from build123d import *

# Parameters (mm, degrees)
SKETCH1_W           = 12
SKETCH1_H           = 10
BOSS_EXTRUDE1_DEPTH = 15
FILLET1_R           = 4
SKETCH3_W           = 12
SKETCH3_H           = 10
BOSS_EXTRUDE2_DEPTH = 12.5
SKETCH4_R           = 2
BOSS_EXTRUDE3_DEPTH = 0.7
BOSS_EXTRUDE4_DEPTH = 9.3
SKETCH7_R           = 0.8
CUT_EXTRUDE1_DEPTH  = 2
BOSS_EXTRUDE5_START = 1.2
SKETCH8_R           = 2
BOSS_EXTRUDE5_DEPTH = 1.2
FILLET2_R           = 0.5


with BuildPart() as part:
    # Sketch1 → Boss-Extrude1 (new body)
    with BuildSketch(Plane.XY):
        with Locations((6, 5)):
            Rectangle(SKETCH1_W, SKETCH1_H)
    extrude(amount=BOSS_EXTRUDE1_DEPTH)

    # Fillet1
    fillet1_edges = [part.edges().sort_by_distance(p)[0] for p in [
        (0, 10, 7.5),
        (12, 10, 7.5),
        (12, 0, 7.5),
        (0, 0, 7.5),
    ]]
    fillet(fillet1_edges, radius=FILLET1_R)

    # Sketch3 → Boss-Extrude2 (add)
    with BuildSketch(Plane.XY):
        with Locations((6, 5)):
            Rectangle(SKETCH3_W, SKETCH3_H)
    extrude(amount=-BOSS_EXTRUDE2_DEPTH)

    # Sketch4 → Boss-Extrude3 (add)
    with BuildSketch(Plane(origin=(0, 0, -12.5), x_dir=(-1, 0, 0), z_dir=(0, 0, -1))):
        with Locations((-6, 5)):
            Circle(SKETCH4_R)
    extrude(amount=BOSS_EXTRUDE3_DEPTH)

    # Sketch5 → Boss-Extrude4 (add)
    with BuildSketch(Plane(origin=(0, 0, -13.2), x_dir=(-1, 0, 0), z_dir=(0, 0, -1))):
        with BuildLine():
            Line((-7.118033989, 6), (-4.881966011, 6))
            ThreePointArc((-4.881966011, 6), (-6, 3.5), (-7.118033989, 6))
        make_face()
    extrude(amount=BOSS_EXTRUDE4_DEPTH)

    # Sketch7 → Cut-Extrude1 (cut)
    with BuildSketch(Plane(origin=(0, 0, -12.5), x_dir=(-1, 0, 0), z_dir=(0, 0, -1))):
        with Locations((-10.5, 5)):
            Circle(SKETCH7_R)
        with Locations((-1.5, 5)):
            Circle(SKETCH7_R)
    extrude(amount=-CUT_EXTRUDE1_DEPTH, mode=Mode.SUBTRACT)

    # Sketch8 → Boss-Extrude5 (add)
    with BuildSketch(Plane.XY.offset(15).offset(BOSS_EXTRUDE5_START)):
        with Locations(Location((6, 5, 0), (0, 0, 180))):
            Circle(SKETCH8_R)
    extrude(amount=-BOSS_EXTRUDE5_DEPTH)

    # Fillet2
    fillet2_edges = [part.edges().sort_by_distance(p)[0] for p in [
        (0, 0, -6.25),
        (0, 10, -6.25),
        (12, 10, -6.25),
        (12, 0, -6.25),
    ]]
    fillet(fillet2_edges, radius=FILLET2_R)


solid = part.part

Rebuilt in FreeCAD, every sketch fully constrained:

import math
import FreeCAD as App
import Part
import Sketcher
Q = App.Units.Quantity


def edges_at(feature, points):
    """Names of the edges that pass closest to the given points."""
    edges = feature.Shape.Edges
    near = lambda p: min(range(len(edges)), key=lambda i: edges[i].distToShape(Part.Vertex(*p))[0])
    return sorted({f"Edge{near(p) + 1}" for p in points})


def add_polygon(sketch, points):
    """Adds a closed chain of lines whose ends are joined by coincident constraints."""
    first, n = sketch.GeometryCount, len(points)
    for a, b in zip(points, points[1:] + points[:1]):
        sketch.addGeometry(Part.LineSegment(App.Vector(*a, 0), App.Vector(*b, 0)), False)
    for i in range(n):
        sketch.addConstraint(Sketcher.Constraint("Coincident", first + i, 2, first + (i + 1) % n, 1))

doc = App.newDocument("Part")
body = doc.addObject("PartDesign::Body", "Body")

sketch1 = body.newObject("Sketcher::SketchObject", "Sketch")
sketch1.AttachmentSupport = (doc.getObject("XY_Plane"), [""])
sketch1.MapMode = "FlatFace"
add_polygon(sketch1, [(0, 10), (0, 0), (12, 0), (12, 10)])
sketch1.addConstraint([
    Sketcher.Constraint("Vertical", 0),
    Sketcher.Constraint("Horizontal", 1),
    Sketcher.Constraint("Vertical", 2),
    Sketcher.Constraint("Horizontal", 3),
    Sketcher.Constraint("Coincident", 0, 2, -1, 1),
    Sketcher.Constraint("DistanceX", 1, 1, 1, 2, Q("12 mm")),
    Sketcher.Constraint("DistanceY", 0, 2, 0, 1, Q("10 mm")),
])
pad1 = body.newObject("PartDesign::Pad", "Pad")
pad1.Profile = sketch1
pad1.Length = 15
doc.recompute()

fillet = body.newObject("PartDesign::Fillet", "Fillet")
fillet.Base = (pad1, edges_at(pad1, [
    (0, 10, 7.5),
    (12, 10, 7.5),
    (12, 0, 7.5),
    (0, 0, 7.5),
]))
fillet.Radius = 4

sketch2 = body.newObject("Sketcher::SketchObject", "Sketch001")
sketch2.AttachmentSupport = (doc.getObject("XY_Plane"), [""])
sketch2.MapMode = "FlatFace"
add_polygon(sketch2, [(0, 10), (0, 0), (12, 0), (12, 10)])
sketch2.addConstraint([
    Sketcher.Constraint("Vertical", 0),
    Sketcher.Constraint("Horizontal", 1),
    Sketcher.Constraint("Vertical", 2),
    Sketcher.Constraint("Horizontal", 3),
    Sketcher.Constraint("Coincident", 0, 2, -1, 1),
    Sketcher.Constraint("DistanceX", 1, 1, 1, 2, Q("12 mm")),
    Sketcher.Constraint("DistanceY", 0, 2, 0, 1, Q("10 mm")),
])
pad2 = body.newObject("PartDesign::Pad", "Pad001")
pad2.Profile = sketch2
pad2.Length = 12.5
pad2.Reversed = True

sketch3 = body.newObject("Sketcher::SketchObject", "Sketch002")
sketch3.AttachmentSupport = (doc.getObject("XY_Plane"), [""])
sketch3.MapMode = "FlatFace"
sketch3.AttachmentOffset = App.Placement(App.Vector(0, 0, -12.5), App.Rotation())
sketch3.addGeometry(Part.Circle(App.Vector(6, 5, 0), App.Vector(0, 0, 1), 2), False)
sketch3.addConstraint([
    Sketcher.Constraint("Diameter", 0, Q("4 mm")),
    Sketcher.Constraint("DistanceX", -1, 1, 0, 3, Q("6 mm")),
    Sketcher.Constraint("DistanceY", -1, 1, 0, 3, Q("5 mm")),
])
pad3 = body.newObject("PartDesign::Pad", "Pad002")
pad3.Profile = sketch3
pad3.Length = 0.7
pad3.Reversed = True

sketch4 = body.newObject("Sketcher::SketchObject", "Sketch003")
sketch4.AttachmentSupport = (doc.getObject("XY_Plane"), [""])
sketch4.MapMode = "FlatFace"
sketch4.AttachmentOffset = App.Placement(App.Vector(0, 0, -13.2), App.Rotation())
sketch4.addGeometry([
    Part.LineSegment(App.Vector(4.881966, 6, 0), App.Vector(7.118034, 6, 0)),
    Part.ArcOfCircle(Part.Circle(App.Vector(6, 5, 0), App.Vector(0, 0, 1), 1.5), math.radians(138.189685), math.radians(401.810315)),
], False)
sketch4.addConstraint([
    Sketcher.Constraint("Coincident", 0, 1, 1, 1),
    Sketcher.Constraint("Coincident", 1, 2, 0, 2),
    Sketcher.Constraint("Horizontal", 0),
    Sketcher.Constraint("Radius", 1, Q("1.5 mm")),
    Sketcher.Constraint("DistanceX", -1, 1, 1, 3, Q("6 mm")),
    Sketcher.Constraint("DistanceY", -1, 1, 1, 3, Q("5 mm")),
    Sketcher.Constraint("DistanceY", -1, 1, 0, 1, Q("6 mm")),
])
pad4 = body.newObject("PartDesign::Pad", "Pad003")
pad4.Profile = sketch4
pad4.Length = 9.3
pad4.Reversed = True

sketch5 = body.newObject("Sketcher::SketchObject", "Sketch004")
sketch5.AttachmentSupport = (doc.getObject("XY_Plane"), [""])
sketch5.MapMode = "FlatFace"
sketch5.AttachmentOffset = App.Placement(App.Vector(0, 0, -12.5), App.Rotation())
sketch5.addGeometry([
    Part.Circle(App.Vector(10.5, 5, 0), App.Vector(0, 0, 1), 0.8),
    Part.Circle(App.Vector(1.5, 5, 0), App.Vector(0, 0, 1), 0.8),
], False)
sketch5.addConstraint([
    Sketcher.Constraint("Equal", 0, 1),
    Sketcher.Constraint("Horizontal", 0, 3, 1, 3),
    Sketcher.Constraint("Diameter", 0, Q("1.6 mm")),
    Sketcher.Constraint("DistanceY", -1, 1, 0, 3, Q("5 mm")),
    Sketcher.Constraint("DistanceX", 1, 3, 0, 3, Q("9 mm")),
    Sketcher.Constraint("DistanceX", -1, 1, 0, 3, Q("10.5 mm")),
])
pocket1 = body.newObject("PartDesign::Pocket", "Pocket")
pocket1.Profile = sketch5
pocket1.Length = 2
pocket1.Reversed = True

sketch6 = body.newObject("Sketcher::SketchObject", "Sketch005")
sketch6.AttachmentSupport = (doc.getObject("XY_Plane"), [""])
sketch6.MapMode = "FlatFace"
sketch6.AttachmentOffset = App.Placement(App.Vector(0, 0, 16.2), App.Rotation())
sketch6.addGeometry(Part.Circle(App.Vector(6, 5, 0), App.Vector(0, 0, 1), 2), False)
sketch6.addConstraint([
    Sketcher.Constraint("Diameter", 0, Q("4 mm")),
    Sketcher.Constraint("DistanceX", -1, 1, 0, 3, Q("6 mm")),
    Sketcher.Constraint("DistanceY", -1, 1, 0, 3, Q("5 mm")),
])
pad5 = body.newObject("PartDesign::Pad", "Pad004")
pad5.Profile = sketch6
pad5.Length = 1.2
pad5.Reversed = True
doc.recompute()

fillet2 = body.newObject("PartDesign::Fillet", "Fillet001")
fillet2.Base = (pad5, edges_at(pad5, [
    (0, 0, -6.25),
    (0, 10, -6.25),
    (12, 10, -6.25),
    (12, 0, -6.25),
]))
fillet2.Radius = 0.5

doc.recompute()
